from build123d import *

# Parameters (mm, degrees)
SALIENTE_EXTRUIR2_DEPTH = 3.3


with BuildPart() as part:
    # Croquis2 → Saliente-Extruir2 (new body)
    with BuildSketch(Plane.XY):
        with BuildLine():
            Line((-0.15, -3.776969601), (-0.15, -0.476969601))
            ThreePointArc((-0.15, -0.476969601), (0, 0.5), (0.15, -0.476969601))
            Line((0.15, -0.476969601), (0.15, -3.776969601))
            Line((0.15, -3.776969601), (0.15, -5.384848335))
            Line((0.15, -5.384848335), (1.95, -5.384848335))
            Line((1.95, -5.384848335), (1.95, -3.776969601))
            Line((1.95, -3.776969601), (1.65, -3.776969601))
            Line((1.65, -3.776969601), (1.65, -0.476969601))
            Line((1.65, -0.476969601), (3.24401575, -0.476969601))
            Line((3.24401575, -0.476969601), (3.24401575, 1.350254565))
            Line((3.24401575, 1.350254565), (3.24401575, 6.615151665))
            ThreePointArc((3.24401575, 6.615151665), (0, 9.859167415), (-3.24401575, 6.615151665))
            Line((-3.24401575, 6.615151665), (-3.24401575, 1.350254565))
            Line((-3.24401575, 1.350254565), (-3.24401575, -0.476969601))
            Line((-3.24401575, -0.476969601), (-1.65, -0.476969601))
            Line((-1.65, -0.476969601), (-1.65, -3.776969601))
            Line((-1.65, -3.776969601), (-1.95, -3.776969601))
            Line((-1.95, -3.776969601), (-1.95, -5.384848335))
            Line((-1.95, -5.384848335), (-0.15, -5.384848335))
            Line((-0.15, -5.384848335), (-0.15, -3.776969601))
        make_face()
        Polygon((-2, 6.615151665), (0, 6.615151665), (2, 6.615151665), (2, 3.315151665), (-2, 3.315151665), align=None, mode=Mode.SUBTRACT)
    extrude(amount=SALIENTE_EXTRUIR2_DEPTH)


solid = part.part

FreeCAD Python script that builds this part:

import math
import FreeCAD as App
import Part
import Sketcher
Q = App.Units.Quantity

doc = App.newDocument("Part")
params = doc.addObject("Spreadsheet::Sheet", "Params")
for row, (alias, value) in enumerate([
    ("sketch1_radius", "0.5 mm"),
    ("sketch1_width", "4 mm"),
    ("sketch1_width2", "1.8 mm"),
    ("sketch1_width3", "0.3 mm"),
    ("sketch1_height", "3.3 mm"),
    ("pad1_length", "3.3 mm"),
], start=1):
    params.set(f"A{row}", alias)
    params.set(f"B{row}", "=" + value)
    params.setAlias(f"B{row}", alias)

body = doc.addObject("PartDesign::Body", "Body")

# Sketch on XY plane
sketch1 = body.newObject("Sketcher::SketchObject", "Sketch")
sketch1.AttachmentSupport = (doc.getObject("XY_Plane"), [""])
sketch1.MapMode = "FlatFace"
sketch1.addGeometry(Part.ArcOfCircle(Part.Circle(App.Vector(0, 0, 0), App.Vector(0, 0, 1), 0.5), math.radians(-73), math.radians(253)), False)
sketch1.addGeometry(Part.LineSegment(App.Vector(0.15, -0.48, 0), App.Vector(0.15, -5.38, 0)), False)
sketch1.addGeometry(Part.LineSegment(App.Vector(0.15, -5.38, 0), App.Vector(1.95, -5.38, 0)), False)
sketch1.addGeometry(Part.LineSegment(App.Vector(1.95, -5.38, 0), App.Vector(1.95, -3.78, 0)), False)
sketch1.addGeometry(Part.LineSegment(App.Vector(1.95, -3.78, 0), App.Vector(1.65, -3.78, 0)), False)
sketch1.addGeometry(Part.LineSegment(App.Vector(1.65, -3.78, 0), App.Vector(1.65, -0.48, 0)), False)
sketch1.addGeometry(Part.LineSegment(App.Vector(1.65, -0.48, 0), App.Vector(3.24, -0.48, 0)), False)
sketch1.addGeometry(Part.LineSegment(App.Vector(3.24, -0.48, 0), App.Vector(3.24, 6.62, 0)), False)
sketch1.addGeometry(Part.ArcOfCircle(Part.Circle(App.Vector(0, 6.62, 0), App.Vector(0, 0, 1), 3.24), math.radians(0), math.radians(180)), False)
sketch1.addGeometry(Part.LineSegment(App.Vector(-3.24, 6.62, 0), App.Vector(-3.24, -0.48, 0)), False)
sketch1.addGeometry(Part.LineSegment(App.Vector(-3.24, -0.48, 0), App.Vector(-1.65, -0.48, 0)), False)
sketch1.addGeometry(Part.LineSegment(App.Vector(-1.65, -0.48, 0), App.Vector(-1.65, -3.78, 0)), False)
sketch1.addGeometry(Part.LineSegment(App.Vector(-1.65, -3.78, 0), App.Vector(-1.95, -3.78, 0)), False)
sketch1.addGeometry(Part.LineSegment(App.Vector(-1.95, -3.78, 0), App.Vector(-1.95, -5.38, 0)), False)
sketch1.addGeometry(Part.LineSegment(App.Vector(-1.95, -5.38, 0), App.Vector(-0.15, -5.38, 0)), False)
sketch1.addGeometry(Part.LineSegment(App.Vector(-0.15, -5.38, 0), App.Vector(-0.15, -0.48, 0)), False)
sketch1.addGeometry(Part.LineSegment(App.Vector(-2, 3.32, 0), App.Vector(-2, 6.62, 0)), False)
sketch1.addGeometry(Part.LineSegment(App.Vector(-2, 6.62, 0), App.Vector(2, 6.62, 0)), False)
sketch1.addGeometry(Part.LineSegment(App.Vector(2, 6.62, 0), App.Vector(2, 3.32, 0)), False)
sketch1.addGeometry(Part.LineSegment(App.Vector(2, 3.32, 0), App.Vector(-2, 3.32, 0)), False)
sketch1.addConstraint(Sketcher.Constraint("Coincident", 0, 1, 1, 1))
sketch1.addConstraint(Sketcher.Constraint("Coincident", 1, 2, 2, 1))
sketch1.addConstraint(Sketcher.Constraint("Coincident", 2, 2, 3, 1))
sketch1.addConstraint(Sketcher.Constraint("Coincident", 3, 2, 4, 1))
sketch1.addConstraint(Sketcher.Constraint("Coincident", 4, 2, 5, 1))
sketch1.addConstraint(Sketcher.Constraint("Coincident", 5, 2, 6, 1))
sketch1.addConstraint(Sketcher.Constraint("Coincident", 6, 2, 7, 1))
sketch1.addConstraint(Sketcher.Constraint("Tangent", 7, 2, 8, 1))
sketch1.addConstraint(Sketcher.Constraint("Tangent", 8, 2, 9, 1))
sketch1.addConstraint(Sketcher.Constraint("Coincident", 9, 2, 10, 1))
sketch1.addConstraint(Sketcher.Constraint("Coincident", 10, 2, 11, 1))
sketch1.addConstraint(Sketcher.Constraint("Coincident", 11, 2, 12, 1))
sketch1.addConstraint(Sketcher.Constraint("Coincident", 12, 2, 13, 1))
sketch1.addConstraint(Sketcher.Constraint("Coincident", 13, 2, 14, 1))
sketch1.addConstraint(Sketcher.Constraint("Coincident", 14, 2, 15, 1))
sketch1.addConstraint(Sketcher.Constraint("Coincident", 15, 2, 0, 2))
sketch1.addConstraint(Sketcher.Constraint("Coincident", 16, 2, 17, 1))
sketch1.addConstraint(Sketcher.Constraint("Coincident", 17, 2, 18, 1))
sketch1.addConstraint(Sketcher.Constraint("Coincident", 18, 2, 19, 1))
sketch1.addConstraint(Sketcher.Constraint("Coincident", 19, 2, 16, 1))
sketch1.addConstraint(Sketcher.Constraint("Vertical", 1))
sketch1.addConstraint(Sketcher.Constraint("Horizontal", 2))
sketch1.addConstraint(Sketcher.Constraint("Vertical", 3))
sketch1.addConstraint(Sketcher.Constraint("Horizontal", 4))
sketch1.addConstraint(Sketcher.Constraint("Vertical", 5))
sketch1.addConstraint(Sketcher.Constraint("Horizontal", 6))
sketch1.addConstraint(Sketcher.Constraint("Vertical", 7))
sketch1.addConstraint(Sketcher.Constraint("Vertical", 9))
sketch1.addConstraint(Sketcher.Constraint("Horizontal", 10))
sketch1.addConstraint(Sketcher.Constraint("Vertical", 11))
sketch1.addConstraint(Sketcher.Constraint("Horizontal", 12))
sketch1.addConstraint(Sketcher.Constraint("Vertical", 13))
sketch1.addConstraint(Sketcher.Constraint("Horizontal", 14))
sketch1.addConstraint(Sketcher.Constraint("Vertical", 15))
sketch1.addConstraint(Sketcher.Constraint("Vertical", 16))
sketch1.addConstraint(Sketcher.Constraint("Horizontal", 17))
sketch1.addConstraint(Sketcher.Constraint("Vertical", 18))
sketch1.addConstraint(Sketcher.Constraint("Horizontal", 19))
sketch1.addConstraint(Sketcher.Constraint("Coincident", 0, 3, -1, 1))
sketch1.addConstraint(Sketcher.Constraint("Symmetric", 6, 2, 9, 2, -2))
sketch1.addConstraint(Sketcher.Constraint("Symmetric", 4, 2, 11, 2, -2))
sketch1.addConstraint(Sketcher.Constraint("Symmetric", 2, 2, 13, 2, -2))
sketch1.addConstraint(Sketcher.Constraint("Horizontal", 0, 1, 5, 2))
sketch1.addConstraint(Sketcher.Constraint("Horizontal", 10, 2, 15, 2))
sketch1.addConstraint(Sketcher.Constraint("Horizontal", 8, 2, 16, 2))
sketch1.addConstraint(Sketcher.Constraint("Equal", 11, 16))
sketch1.addConstraint(Sketcher.Constraint("Radius", 0, Q("0.5 mm")))
sketch1.addConstraint(Sketcher.Constraint("DistanceX", 17, 1, 17, 2, Q("4 mm")))
sketch1.addConstraint(Sketcher.Constraint("DistanceX", 2, 1, 2, 2, Q("1.8 mm")))
sketch1.addConstraint(Sketcher.Constraint("DistanceX", 4, 2, 4, 1, Q("0.3 mm")))
sketch1.addConstraint(Sketcher.Constraint("DistanceY", 5, 1, 5, 2, Q("3.3 mm")))
sketch1.addConstraint(Sketcher.Constraint("DistanceX", 16, 2, -1, 1, Q("2 mm")))
sketch1.addConstraint(Sketcher.Constraint("DistanceY", 1, 2, 8, 3, Q("12 mm")))
sketch1.addConstraint(Sketcher.Constraint("DistanceX", 10, 2, 0, 1, Q("1.8 mm")))
sketch1.addConstraint(Sketcher.Constraint("Radius", 8, Q("3.244016 mm")))
sketch1.addConstraint(Sketcher.Constraint("DistanceY", 1, 2, 1, 1, Q("4.907879 mm")))
sketch1.setExpression("Constraints[46]", "Params.sketch1_radius")
sketch1.setExpression("Constraints[47]", "Params.sketch1_width")
sketch1.setExpression("Constraints[48]", "Params.sketch1_width2")
sketch1.setExpression("Constraints[49]", "Params.sketch1_width3")
sketch1.setExpression("Constraints[50]", "Params.sketch1_height")
pad1 = body.newObject("PartDesign::Pad", "Pad")
pad1.Profile = sketch1
pad1.setExpression("Length", "Params.pad1_length")

doc.recompute()
